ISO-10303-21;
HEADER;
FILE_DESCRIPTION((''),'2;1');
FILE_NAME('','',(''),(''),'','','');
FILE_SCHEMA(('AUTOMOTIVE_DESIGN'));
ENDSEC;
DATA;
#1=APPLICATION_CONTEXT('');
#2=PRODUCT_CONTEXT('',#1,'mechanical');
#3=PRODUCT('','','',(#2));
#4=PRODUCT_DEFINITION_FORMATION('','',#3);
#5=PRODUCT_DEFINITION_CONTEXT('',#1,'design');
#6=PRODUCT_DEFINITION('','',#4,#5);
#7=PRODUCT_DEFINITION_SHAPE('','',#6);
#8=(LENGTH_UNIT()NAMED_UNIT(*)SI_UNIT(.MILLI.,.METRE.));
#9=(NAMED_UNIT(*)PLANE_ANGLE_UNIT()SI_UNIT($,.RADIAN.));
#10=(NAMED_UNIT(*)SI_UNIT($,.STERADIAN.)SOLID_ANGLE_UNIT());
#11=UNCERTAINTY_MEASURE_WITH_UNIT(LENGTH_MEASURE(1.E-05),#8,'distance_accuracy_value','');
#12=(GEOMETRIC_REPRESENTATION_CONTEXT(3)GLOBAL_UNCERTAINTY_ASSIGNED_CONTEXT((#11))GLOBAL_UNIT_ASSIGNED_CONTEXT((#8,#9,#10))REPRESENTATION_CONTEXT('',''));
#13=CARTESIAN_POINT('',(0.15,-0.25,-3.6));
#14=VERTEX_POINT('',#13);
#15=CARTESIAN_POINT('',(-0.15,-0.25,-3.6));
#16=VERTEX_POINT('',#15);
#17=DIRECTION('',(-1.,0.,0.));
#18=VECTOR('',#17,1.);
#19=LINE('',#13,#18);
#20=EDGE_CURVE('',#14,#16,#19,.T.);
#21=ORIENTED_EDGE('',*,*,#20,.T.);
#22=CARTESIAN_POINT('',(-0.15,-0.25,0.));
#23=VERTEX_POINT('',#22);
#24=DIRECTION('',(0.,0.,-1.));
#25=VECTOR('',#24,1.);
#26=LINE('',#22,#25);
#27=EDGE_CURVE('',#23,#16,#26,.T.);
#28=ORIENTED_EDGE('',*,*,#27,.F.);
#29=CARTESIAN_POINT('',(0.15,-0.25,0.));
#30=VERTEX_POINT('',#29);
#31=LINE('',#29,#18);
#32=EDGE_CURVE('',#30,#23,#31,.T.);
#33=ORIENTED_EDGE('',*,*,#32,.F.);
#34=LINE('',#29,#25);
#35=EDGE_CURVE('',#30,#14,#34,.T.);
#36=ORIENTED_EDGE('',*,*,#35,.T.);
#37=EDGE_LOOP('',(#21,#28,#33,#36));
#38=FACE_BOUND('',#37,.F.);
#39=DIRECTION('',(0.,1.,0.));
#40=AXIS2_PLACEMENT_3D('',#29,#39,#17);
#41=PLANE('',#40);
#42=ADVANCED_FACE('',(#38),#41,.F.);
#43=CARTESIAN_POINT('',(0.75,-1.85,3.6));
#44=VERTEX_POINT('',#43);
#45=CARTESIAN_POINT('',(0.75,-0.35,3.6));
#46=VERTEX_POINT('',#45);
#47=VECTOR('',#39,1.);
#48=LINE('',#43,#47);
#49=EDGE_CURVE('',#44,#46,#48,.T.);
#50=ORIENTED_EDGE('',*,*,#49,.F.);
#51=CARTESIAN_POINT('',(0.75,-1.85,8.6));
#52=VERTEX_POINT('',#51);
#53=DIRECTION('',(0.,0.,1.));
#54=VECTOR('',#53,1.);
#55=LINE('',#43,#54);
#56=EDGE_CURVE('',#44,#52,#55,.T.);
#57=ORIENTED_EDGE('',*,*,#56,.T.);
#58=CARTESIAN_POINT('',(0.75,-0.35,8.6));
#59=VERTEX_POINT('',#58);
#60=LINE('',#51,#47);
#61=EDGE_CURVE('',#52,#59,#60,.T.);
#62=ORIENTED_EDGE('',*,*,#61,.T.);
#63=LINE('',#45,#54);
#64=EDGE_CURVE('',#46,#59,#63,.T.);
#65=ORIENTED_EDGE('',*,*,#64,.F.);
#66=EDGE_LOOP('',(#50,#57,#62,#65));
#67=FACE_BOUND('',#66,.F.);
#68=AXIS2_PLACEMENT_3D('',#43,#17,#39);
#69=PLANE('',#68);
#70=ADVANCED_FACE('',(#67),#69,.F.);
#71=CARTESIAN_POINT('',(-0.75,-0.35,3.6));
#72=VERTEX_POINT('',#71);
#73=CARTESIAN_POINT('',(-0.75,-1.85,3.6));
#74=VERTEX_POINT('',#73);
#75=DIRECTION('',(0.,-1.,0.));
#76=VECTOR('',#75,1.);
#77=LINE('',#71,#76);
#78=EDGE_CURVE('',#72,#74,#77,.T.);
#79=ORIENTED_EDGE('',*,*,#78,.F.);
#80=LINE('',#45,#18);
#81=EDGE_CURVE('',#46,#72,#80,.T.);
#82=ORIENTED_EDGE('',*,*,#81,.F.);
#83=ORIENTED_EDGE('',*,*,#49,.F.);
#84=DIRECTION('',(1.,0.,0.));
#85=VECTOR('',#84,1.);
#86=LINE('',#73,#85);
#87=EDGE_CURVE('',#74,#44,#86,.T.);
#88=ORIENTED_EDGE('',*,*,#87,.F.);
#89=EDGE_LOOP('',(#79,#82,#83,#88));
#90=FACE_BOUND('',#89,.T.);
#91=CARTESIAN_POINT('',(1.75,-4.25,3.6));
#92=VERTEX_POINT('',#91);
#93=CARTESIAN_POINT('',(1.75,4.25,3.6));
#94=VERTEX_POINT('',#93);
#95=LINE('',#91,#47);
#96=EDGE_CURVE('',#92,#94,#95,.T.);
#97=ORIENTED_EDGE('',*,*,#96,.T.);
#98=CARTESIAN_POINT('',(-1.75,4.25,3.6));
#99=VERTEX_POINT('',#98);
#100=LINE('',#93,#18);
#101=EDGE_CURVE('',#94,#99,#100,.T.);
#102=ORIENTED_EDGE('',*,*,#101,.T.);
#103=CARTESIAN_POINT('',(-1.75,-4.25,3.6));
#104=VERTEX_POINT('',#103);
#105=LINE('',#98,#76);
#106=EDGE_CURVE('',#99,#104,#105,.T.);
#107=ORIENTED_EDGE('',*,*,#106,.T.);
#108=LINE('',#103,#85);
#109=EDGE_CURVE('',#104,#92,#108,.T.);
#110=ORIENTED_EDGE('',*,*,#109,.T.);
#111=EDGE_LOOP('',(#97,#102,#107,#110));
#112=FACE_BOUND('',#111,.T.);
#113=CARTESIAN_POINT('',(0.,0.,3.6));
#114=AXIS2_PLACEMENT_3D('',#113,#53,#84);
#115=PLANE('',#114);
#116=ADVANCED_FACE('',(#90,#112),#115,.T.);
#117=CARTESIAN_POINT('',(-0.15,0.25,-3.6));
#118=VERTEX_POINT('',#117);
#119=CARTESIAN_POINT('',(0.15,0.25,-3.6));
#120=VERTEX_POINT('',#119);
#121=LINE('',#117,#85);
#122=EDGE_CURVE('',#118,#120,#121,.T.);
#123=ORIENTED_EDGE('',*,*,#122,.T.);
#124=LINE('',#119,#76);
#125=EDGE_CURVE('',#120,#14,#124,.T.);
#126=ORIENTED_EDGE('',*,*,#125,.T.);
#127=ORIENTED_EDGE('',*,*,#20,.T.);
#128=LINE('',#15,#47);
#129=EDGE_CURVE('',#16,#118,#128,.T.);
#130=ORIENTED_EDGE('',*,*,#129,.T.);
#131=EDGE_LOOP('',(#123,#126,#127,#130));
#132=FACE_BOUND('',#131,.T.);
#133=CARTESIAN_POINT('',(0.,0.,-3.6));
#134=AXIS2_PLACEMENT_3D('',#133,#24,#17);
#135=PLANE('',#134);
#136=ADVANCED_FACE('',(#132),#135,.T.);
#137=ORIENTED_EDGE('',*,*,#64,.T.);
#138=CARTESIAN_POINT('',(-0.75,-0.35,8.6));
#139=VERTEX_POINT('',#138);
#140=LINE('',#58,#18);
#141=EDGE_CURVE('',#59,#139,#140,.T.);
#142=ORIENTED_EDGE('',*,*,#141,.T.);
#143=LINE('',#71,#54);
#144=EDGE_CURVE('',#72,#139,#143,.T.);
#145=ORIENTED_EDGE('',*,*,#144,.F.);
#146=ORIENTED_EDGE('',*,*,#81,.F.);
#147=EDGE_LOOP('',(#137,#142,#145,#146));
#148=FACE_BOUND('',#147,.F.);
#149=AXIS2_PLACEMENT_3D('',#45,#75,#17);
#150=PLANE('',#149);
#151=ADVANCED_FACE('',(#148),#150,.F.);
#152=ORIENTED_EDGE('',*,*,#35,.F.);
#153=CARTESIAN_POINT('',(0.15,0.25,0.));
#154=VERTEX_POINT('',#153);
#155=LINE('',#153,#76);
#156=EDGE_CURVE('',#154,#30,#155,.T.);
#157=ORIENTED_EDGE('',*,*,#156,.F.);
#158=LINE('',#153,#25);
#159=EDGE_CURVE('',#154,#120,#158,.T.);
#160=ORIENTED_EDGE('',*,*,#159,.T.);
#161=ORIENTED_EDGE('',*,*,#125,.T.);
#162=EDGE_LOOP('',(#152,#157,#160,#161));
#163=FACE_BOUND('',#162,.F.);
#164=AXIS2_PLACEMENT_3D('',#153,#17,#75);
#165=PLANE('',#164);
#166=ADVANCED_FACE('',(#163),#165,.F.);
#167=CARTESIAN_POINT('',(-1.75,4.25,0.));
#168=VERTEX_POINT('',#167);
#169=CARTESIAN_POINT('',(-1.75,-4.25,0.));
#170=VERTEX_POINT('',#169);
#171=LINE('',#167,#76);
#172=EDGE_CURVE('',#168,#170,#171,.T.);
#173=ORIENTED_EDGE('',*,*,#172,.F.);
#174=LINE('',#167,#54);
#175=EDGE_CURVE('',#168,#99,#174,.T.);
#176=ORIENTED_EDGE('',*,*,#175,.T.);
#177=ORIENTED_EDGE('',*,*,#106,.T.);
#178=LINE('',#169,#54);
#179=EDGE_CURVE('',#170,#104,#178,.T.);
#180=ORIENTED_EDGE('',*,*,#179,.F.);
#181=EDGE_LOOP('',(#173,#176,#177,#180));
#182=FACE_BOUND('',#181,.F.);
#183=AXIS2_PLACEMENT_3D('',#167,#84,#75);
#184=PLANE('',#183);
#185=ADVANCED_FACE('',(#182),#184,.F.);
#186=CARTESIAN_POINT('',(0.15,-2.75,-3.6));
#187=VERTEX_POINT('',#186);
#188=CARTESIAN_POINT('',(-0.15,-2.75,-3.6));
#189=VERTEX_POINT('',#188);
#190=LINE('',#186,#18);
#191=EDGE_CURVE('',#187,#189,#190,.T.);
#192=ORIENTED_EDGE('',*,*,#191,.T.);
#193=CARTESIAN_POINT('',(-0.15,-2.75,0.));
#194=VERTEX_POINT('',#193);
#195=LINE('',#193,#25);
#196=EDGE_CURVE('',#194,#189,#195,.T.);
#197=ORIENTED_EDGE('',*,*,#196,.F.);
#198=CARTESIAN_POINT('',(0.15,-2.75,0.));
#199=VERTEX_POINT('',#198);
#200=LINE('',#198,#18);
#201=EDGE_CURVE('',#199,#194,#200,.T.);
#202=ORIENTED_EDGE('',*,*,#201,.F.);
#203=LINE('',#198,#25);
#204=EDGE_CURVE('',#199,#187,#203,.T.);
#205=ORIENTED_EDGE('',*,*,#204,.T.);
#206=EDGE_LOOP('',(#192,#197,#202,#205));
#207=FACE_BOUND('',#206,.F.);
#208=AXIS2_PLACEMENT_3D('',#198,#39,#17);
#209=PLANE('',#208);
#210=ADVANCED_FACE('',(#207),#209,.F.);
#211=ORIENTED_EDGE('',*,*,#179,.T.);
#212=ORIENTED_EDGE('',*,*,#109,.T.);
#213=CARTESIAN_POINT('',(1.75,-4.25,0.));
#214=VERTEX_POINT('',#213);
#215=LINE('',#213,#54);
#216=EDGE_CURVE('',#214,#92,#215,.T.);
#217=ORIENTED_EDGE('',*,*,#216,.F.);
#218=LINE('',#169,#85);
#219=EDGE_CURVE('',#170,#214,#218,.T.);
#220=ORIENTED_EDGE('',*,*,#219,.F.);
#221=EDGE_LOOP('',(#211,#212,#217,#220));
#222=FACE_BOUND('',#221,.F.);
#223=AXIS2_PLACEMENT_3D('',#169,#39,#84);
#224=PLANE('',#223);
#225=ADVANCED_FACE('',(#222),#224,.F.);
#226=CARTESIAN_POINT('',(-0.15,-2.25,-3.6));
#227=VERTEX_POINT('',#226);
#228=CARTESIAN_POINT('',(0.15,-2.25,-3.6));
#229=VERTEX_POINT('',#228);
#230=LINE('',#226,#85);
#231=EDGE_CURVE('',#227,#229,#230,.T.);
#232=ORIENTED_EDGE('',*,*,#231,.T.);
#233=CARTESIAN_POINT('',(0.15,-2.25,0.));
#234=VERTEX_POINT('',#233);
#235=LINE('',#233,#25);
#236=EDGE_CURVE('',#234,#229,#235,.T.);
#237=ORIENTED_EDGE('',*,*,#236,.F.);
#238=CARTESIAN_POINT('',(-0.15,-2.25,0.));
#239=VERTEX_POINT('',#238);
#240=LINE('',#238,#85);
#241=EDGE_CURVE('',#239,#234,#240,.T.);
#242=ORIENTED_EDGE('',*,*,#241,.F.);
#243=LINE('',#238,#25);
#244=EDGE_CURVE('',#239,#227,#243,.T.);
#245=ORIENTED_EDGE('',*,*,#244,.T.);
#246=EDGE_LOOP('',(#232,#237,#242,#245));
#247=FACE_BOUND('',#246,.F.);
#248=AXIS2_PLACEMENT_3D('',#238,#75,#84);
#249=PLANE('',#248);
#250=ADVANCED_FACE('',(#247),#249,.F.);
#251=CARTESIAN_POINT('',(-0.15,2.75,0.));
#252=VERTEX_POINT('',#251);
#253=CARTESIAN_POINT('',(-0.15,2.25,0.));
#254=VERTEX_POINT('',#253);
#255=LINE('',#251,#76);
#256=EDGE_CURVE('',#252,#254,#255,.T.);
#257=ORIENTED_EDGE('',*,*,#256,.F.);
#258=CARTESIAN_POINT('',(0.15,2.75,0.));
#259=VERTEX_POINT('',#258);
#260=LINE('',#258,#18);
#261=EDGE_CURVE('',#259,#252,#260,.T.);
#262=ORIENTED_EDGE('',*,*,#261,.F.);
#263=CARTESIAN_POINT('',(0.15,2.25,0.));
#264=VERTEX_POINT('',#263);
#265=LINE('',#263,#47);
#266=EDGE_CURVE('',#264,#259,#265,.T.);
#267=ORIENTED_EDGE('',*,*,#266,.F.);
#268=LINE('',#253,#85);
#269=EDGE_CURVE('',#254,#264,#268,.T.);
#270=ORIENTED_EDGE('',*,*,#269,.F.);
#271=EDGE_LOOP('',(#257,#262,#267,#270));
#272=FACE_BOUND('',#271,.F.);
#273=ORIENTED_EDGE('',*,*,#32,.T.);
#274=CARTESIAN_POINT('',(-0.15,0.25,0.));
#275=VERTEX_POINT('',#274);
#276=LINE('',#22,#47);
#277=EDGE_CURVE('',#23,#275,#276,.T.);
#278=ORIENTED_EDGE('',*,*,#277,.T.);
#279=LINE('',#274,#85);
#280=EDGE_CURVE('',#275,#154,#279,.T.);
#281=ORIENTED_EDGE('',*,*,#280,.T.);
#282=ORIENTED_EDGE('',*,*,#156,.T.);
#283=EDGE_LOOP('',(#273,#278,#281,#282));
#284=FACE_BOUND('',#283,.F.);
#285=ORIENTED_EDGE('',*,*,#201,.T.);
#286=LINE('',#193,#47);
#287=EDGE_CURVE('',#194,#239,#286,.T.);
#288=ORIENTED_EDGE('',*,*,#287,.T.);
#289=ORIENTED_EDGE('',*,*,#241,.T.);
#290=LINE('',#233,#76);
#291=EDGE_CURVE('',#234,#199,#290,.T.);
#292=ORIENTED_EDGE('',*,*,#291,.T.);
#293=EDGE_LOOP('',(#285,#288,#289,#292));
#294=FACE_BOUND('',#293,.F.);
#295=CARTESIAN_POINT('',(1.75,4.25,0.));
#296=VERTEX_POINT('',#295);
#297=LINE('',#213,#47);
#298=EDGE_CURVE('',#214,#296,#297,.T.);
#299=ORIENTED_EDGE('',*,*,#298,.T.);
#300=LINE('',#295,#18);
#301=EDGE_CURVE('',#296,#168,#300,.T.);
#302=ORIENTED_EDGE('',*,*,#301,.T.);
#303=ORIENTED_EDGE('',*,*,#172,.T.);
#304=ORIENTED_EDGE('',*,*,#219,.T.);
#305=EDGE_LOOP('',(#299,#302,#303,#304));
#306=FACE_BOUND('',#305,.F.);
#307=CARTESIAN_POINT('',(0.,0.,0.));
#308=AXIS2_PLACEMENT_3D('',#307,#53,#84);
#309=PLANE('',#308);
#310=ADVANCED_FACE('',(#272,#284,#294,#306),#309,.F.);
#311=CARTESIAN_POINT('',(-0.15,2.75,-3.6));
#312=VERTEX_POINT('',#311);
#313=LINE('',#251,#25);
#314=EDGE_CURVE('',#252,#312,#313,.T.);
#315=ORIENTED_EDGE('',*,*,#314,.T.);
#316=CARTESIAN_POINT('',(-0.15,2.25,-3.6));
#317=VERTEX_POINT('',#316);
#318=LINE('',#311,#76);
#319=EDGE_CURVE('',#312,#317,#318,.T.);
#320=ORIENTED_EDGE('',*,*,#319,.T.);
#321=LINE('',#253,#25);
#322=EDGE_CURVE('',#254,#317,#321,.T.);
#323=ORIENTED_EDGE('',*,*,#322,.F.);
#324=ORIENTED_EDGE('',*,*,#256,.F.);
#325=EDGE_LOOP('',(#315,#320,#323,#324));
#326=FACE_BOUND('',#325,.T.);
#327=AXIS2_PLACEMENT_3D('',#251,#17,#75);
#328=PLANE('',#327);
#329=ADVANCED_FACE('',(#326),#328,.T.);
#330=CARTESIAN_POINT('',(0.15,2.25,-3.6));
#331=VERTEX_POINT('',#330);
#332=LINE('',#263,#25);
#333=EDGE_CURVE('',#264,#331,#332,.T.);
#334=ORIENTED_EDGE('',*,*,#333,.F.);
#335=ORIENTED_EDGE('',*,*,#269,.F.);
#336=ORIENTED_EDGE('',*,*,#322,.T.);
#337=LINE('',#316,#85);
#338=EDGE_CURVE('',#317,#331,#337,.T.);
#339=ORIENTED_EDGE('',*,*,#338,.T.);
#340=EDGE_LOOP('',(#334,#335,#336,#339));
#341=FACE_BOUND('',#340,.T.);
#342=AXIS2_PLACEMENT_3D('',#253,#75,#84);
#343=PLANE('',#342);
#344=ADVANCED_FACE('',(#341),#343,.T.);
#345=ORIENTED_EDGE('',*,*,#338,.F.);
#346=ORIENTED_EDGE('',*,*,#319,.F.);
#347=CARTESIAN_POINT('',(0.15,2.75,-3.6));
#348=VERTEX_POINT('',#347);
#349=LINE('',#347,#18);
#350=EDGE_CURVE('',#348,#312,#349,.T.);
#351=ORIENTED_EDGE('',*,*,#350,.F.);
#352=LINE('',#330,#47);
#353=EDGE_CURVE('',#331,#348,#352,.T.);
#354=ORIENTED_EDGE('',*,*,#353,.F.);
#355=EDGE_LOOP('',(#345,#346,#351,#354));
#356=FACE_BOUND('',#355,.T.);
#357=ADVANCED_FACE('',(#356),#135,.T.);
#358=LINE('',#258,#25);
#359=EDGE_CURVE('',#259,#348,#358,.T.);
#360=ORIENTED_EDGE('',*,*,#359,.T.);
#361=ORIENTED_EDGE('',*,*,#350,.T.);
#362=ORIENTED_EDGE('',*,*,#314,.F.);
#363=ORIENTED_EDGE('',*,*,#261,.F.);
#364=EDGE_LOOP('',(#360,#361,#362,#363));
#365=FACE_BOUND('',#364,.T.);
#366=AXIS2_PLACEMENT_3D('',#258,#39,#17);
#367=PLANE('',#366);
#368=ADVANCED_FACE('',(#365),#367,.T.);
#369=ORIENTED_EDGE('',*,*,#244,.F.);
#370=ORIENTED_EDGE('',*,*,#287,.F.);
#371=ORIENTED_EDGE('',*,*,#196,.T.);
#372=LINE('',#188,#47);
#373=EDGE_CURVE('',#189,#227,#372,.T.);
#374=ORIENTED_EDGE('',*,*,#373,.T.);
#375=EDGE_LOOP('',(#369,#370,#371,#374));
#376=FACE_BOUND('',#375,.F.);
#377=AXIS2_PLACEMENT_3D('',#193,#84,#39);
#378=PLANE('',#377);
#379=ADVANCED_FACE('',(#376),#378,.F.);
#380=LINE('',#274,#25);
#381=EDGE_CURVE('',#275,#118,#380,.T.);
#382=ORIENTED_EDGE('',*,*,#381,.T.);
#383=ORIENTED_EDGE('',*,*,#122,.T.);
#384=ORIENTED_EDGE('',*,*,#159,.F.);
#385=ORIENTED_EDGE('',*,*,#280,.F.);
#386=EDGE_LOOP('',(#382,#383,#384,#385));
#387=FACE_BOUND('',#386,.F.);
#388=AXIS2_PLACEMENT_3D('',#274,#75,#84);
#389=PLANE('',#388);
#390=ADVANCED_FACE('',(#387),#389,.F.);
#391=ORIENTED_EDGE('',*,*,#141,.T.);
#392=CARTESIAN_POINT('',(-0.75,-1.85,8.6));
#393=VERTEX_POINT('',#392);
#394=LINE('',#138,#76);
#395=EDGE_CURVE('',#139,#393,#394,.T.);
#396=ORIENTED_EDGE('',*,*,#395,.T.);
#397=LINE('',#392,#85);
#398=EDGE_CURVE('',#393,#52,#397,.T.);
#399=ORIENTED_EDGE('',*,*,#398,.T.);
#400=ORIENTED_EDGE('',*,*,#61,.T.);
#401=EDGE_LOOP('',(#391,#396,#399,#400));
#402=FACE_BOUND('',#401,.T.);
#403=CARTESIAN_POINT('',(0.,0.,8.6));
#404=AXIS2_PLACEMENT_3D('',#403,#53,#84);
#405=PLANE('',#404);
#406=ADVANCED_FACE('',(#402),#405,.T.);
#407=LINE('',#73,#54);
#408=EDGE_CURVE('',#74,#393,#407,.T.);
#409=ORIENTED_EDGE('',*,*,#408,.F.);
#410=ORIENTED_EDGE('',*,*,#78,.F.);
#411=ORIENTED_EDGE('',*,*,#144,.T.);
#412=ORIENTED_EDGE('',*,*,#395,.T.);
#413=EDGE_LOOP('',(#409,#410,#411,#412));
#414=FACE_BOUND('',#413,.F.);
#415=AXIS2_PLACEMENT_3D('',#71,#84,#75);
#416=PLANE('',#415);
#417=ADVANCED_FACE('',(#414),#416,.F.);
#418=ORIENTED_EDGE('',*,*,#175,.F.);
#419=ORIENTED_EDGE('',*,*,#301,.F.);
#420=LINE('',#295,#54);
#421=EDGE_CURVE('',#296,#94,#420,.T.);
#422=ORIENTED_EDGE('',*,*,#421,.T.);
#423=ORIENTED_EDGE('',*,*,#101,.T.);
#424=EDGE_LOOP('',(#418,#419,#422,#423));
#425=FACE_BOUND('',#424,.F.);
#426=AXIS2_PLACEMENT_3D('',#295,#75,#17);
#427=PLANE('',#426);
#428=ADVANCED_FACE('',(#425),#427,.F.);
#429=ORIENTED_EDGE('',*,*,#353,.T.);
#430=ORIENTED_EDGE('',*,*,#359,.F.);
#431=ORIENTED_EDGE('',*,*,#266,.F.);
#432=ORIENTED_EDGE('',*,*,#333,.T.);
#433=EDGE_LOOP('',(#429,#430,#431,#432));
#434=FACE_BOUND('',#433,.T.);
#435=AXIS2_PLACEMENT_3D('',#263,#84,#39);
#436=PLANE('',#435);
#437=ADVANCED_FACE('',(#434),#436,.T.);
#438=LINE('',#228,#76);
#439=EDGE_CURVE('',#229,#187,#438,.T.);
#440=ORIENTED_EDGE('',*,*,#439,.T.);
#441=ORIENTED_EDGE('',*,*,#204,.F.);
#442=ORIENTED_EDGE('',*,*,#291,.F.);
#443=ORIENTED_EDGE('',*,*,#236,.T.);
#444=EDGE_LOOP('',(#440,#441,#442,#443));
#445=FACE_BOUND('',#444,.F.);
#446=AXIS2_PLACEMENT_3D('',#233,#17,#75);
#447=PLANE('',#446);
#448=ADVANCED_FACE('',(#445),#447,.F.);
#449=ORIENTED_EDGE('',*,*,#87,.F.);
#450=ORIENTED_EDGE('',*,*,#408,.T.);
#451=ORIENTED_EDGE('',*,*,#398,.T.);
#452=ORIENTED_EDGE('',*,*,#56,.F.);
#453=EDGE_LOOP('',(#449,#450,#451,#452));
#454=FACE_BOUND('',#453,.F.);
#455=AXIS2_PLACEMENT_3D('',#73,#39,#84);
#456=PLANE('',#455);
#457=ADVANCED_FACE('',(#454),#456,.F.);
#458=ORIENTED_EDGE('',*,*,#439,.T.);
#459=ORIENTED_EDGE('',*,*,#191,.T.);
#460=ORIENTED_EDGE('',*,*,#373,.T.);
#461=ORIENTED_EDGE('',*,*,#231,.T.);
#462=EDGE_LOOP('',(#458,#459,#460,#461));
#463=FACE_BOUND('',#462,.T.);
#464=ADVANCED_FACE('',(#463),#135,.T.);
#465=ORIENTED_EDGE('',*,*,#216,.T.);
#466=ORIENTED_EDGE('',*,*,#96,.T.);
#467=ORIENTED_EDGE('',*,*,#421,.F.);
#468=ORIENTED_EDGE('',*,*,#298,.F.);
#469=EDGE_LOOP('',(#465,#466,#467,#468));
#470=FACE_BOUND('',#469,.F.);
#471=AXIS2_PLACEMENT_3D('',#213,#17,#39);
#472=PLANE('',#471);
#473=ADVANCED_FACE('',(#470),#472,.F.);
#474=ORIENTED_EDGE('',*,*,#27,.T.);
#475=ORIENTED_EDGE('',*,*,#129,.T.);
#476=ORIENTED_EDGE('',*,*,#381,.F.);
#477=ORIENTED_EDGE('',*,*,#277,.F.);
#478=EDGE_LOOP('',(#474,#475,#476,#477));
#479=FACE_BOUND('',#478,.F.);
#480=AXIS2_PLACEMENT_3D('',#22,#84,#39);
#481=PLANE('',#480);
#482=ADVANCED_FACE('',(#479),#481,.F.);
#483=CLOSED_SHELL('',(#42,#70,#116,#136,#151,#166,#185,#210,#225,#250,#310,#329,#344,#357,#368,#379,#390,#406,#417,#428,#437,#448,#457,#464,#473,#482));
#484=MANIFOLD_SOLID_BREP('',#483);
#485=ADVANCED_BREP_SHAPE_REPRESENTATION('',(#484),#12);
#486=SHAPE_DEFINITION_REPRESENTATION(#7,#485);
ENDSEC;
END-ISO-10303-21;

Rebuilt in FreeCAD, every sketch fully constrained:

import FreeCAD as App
import Part
import Sketcher
from FreeCAD import Vector
Q = App.Units.Quantity


def add_polygon(sketch, points):
    """Adds a closed chain of lines whose ends are joined by coincident constraints."""
    first, n = sketch.GeometryCount, len(points)
    for a, b in zip(points, points[1:] + points[:1]):
        sketch.addGeometry(Part.LineSegment(App.Vector(*a, 0), App.Vector(*b, 0)), False)
    for i in range(n):
        sketch.addConstraint(Sketcher.Constraint("Coincident", first + i, 2, first + (i + 1) % n, 1))

doc = App.newDocument("Part")
params = doc.addObject("Spreadsheet::Sheet", "Params")
for row, (alias, value) in enumerate([
    ("sketch1_width", "3.5 mm"),
    ("sketch1_height", "8.5 mm"),
    ("pad1_length", "3.6 mm"),
    ("sketch2_width", "1.5 mm"),
    ("pad2_length", "5 mm"),
    ("sketch3_width", "0.3 mm"),
    ("sketch3_height", "0.5 mm"),
    ("pad3_length", "3.6 mm"),
], start=1):
    params.set(f"A{row}", alias)
    params.set(f"B{row}", "=" + value)
    params.setAlias(f"B{row}", alias)

body = doc.addObject("PartDesign::Body", "Body")

# Sketch on XY plane
sketch1 = body.newObject("Sketcher::SketchObject", "Sketch")
sketch1.AttachmentSupport = (doc.getObject("XY_Plane"), [""])
sketch1.MapMode = "FlatFace"
add_polygon(sketch1, [(-1.8, 4.2), (-1.8, -4.2), (1.8, -4.2), (1.8, 4.2)])  # lines 0-3
sketch1.addConstraint([
    Sketcher.Constraint("Vertical", 0),
    Sketcher.Constraint("Horizontal", 1),
    Sketcher.Constraint("Vertical", 2),
    Sketcher.Constraint("Horizontal", 3),
    Sketcher.Constraint("Symmetric", 0, 2, 2, 2, -1, 1),
    Sketcher.Constraint("DistanceX", 1, 1, 1, 2, Q("3.5 mm")),
    Sketcher.Constraint("DistanceY", 0, 2, 0, 1, Q("8.5 mm")),
])
sketch1.setExpression("Constraints[9]", "Params.sketch1_width")
sketch1.setExpression("Constraints[10]", "Params.sketch1_height")
pad1 = body.newObject("PartDesign::Pad", "Pad")
pad1.Profile = sketch1
pad1.setExpression("Length", "Params.pad1_length")

# Sketch on XY plane
sketch2 = body.newObject("Sketcher::SketchObject", "Sketch001")
sketch2.AttachmentSupport = (doc.getObject("XY_Plane"), [""])
sketch2.MapMode = "FlatFace"
sketch2.AttachmentOffset = App.Placement(Vector(0, 0, 3.6), App.Rotation())
add_polygon(sketch2, [(-0.8, -0.3), (-0.8, -1.9), (0.8, -1.9), (0.8, -0.3)])  # lines 0-3
sketch2.addConstraint([
    Sketcher.Constraint("Vertical", 0),
    Sketcher.Constraint("Horizontal", 1),
    Sketcher.Constraint("Vertical", 2),
    Sketcher.Constraint("Horizontal", 3),
    Sketcher.Constraint("Equal", 3, 0),
    Sketcher.Constraint("DistanceX", 1, 1, 1, 2, Q("1.5 mm")),
    Sketcher.Constraint("DistanceX", 0, 2, -1, 1, Q("0.75 mm")),
    Sketcher.Constraint("DistanceY", 0, 2, -1, 1, Q("1.85 mm")),
])
sketch2.setExpression("Constraints[9]", "Params.sketch2_width")
pad2 = body.newObject("PartDesign::Pad", "Pad001")
pad2.Profile = sketch2
pad2.setExpression("Length", "Params.pad2_length")

# Sketch on XY plane
sketch3 = body.newObject("Sketcher::SketchObject", "Sketch002")
sketch3.AttachmentSupport = (doc.getObject("XY_Plane"), [""])
sketch3.MapMode = "FlatFace"
add_polygon(sketch3, [(-0.15, 2.75), (0.15, 2.75), (0.15, 2.25), (-0.15, 2.25)])  # lines 0-3
add_polygon(sketch3, [(0.15, 0.25), (0.15, -0.25), (-0.15, -0.25), (-0.15, 0.25)])  # lines 4-7
add_polygon(sketch3, [(0.15, -2.25), (0.15, -2.75), (-0.15, -2.75), (-0.15, -2.25)])  # lines 8-11
sketch3.addConstraint([
    Sketcher.Constraint("Horizontal", 0),
    Sketcher.Constraint("Vertical", 1),
    Sketcher.Constraint("Horizontal", 2),
    Sketcher.Constraint("Vertical", 3),
    Sketcher.Constraint("Vertical", 4),
    Sketcher.Constraint("Horizontal", 5),
    Sketcher.Constraint("Vertical", 6),
    Sketcher.Constraint("Horizontal", 7),
    Sketcher.Constraint("Vertical", 8),
    Sketcher.Constraint("Horizontal", 9),
    Sketcher.Constraint("Vertical", 10),
    Sketcher.Constraint("Horizontal", 11),
    Sketcher.Constraint("Symmetric", 4, 2, 6, 2, -1, 1),
    Sketcher.Constraint("Symmetric", 3, 2, 8, 2, -1, 1),
    Sketcher.Constraint("Symmetric", 1, 2, 10, 2, -1, 1),
    Sketcher.Constraint("Vertical", 1, 2, 4, 2),
    Sketcher.Constraint("Vertical", 3, 2, 5, 2),
    Sketcher.Constraint("Equal", 3, 4),
    Sketcher.Constraint("DistanceX", 0, 1, 0, 2, Q("0.3 mm")),
    Sketcher.Constraint("DistanceY", 1, 2, 1, 1, Q("0.5 mm")),
    Sketcher.Constraint("DistanceY", 4, 2, 0, 2, Q("3 mm")),
])
sketch3.setExpression("Constraints[30]", "Params.sketch3_width")
sketch3.setExpression("Constraints[31]", "Params.sketch3_height")
pad3 = body.newObject("PartDesign::Pad", "Pad002")
pad3.Profile = sketch3
pad3.setExpression("Length", "Params.pad3_length")
pad3.Reversed = True

doc.recompute()
